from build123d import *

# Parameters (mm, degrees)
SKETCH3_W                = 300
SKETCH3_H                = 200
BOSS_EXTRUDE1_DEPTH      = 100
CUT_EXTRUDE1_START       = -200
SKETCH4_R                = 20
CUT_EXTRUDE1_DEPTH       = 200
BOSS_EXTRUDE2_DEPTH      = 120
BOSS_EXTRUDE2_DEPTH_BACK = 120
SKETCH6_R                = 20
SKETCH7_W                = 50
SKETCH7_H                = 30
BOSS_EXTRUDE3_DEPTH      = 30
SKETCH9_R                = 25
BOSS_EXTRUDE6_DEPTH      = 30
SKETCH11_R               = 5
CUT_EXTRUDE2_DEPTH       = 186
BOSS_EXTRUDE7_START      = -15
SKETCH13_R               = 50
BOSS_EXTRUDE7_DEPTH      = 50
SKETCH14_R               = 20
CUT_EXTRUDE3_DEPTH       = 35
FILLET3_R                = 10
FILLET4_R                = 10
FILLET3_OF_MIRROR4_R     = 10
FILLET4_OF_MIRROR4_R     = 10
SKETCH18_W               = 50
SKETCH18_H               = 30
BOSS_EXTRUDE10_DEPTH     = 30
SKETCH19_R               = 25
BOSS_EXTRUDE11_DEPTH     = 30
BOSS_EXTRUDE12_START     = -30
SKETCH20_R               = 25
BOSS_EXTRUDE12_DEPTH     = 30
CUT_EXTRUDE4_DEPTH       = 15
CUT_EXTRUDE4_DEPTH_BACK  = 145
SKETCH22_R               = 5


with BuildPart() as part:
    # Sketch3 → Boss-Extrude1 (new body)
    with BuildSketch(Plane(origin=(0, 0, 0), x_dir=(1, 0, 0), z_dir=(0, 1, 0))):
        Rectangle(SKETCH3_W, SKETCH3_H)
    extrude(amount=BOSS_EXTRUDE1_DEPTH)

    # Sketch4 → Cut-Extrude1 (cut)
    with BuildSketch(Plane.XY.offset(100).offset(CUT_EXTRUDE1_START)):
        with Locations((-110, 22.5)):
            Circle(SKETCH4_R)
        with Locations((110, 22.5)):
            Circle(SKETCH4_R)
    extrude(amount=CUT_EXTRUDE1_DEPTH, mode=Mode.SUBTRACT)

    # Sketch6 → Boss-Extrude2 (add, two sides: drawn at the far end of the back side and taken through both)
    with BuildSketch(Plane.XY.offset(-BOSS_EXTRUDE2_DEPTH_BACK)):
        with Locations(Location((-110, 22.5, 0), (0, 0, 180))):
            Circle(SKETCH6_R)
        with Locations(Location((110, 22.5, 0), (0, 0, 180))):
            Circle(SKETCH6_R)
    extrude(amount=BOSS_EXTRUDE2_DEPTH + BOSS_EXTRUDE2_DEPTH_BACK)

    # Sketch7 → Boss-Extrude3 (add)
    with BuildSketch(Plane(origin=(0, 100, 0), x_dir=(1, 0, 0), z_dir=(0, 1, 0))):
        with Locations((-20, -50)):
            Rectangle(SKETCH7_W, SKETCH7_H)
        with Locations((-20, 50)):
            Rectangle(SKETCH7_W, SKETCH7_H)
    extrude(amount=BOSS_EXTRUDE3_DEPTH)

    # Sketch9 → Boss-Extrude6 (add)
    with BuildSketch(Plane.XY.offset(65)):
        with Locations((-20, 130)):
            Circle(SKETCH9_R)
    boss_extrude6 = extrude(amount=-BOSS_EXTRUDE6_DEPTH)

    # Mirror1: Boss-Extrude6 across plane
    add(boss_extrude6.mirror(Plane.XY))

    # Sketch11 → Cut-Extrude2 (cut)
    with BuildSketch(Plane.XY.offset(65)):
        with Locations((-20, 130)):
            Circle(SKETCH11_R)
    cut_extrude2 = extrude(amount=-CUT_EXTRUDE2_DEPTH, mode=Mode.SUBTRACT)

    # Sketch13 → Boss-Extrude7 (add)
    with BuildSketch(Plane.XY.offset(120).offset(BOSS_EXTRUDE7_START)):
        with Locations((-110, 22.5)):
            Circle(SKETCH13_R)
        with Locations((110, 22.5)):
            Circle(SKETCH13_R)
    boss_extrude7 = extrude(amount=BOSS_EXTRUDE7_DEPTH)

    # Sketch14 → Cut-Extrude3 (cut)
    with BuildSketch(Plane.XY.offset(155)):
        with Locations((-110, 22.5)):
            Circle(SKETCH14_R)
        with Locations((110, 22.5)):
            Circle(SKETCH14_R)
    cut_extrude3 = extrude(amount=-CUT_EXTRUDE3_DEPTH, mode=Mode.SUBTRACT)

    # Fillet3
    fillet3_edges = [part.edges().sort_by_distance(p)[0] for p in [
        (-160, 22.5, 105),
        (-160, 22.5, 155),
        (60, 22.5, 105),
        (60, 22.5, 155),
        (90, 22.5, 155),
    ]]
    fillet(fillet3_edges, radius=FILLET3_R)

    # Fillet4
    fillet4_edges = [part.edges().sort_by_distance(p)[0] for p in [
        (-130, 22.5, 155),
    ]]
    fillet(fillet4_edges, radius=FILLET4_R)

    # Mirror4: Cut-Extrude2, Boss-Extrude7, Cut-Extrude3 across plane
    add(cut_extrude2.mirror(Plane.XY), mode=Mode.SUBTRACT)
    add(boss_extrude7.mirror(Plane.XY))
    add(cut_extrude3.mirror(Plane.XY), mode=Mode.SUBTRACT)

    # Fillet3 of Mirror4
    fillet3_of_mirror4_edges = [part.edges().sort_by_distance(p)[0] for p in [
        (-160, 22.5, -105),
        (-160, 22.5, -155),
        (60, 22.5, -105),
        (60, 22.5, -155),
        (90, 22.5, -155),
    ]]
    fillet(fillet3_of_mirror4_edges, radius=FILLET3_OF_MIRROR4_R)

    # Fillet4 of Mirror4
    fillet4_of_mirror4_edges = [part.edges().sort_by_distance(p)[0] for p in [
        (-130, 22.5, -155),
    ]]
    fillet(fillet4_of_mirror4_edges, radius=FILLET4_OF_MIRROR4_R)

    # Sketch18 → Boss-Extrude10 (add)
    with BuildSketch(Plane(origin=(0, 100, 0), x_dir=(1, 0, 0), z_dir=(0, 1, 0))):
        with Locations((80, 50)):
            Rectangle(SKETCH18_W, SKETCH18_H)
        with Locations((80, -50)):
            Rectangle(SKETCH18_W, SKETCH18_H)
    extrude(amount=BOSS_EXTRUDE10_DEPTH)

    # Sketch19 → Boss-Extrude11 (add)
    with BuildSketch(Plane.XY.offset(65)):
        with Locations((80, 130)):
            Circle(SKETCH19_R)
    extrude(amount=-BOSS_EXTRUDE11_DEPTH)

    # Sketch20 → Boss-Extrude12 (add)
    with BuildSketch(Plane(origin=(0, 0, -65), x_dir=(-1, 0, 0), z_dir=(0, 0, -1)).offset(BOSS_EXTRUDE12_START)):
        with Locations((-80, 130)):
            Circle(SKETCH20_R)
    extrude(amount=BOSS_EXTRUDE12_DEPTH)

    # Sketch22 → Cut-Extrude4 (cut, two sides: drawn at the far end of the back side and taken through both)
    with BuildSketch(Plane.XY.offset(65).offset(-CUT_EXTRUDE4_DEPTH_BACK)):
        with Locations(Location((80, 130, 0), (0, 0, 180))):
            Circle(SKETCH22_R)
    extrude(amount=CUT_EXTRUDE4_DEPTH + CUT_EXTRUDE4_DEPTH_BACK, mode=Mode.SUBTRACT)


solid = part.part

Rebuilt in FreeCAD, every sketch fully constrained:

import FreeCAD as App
import Part
import Sketcher

V = App.Vector


def edges_at(feature, points):
    """Names of the edges that pass closest to the given points."""
    edges = feature.Shape.Edges
    near = lambda p: min(range(len(edges)), key=lambda i: edges[i].distToShape(Part.Vertex(*p))[0])
    return sorted({f"Edge{near(p) + 1}" for p in points})


def add_polygon(sketch, points):
    """Adds a closed chain of lines whose ends are joined by coincident constraints."""
    first, n = sketch.GeometryCount, len(points)
    for a, b in zip(points, points[1:] + points[:1]):
        sketch.addGeometry(Part.LineSegment(App.Vector(*a, 0), App.Vector(*b, 0)), False)
    for i in range(n):
        sketch.addConstraint(Sketcher.Constraint("Coincident", first + i, 2, first + (i + 1) % n, 1))

doc = App.newDocument("Part")
params = doc.addObject("Spreadsheet::Sheet", "Params")
for row, (alias, value) in enumerate([
    ("sketch1_width", "300 mm"),
    ("sketch1_height", "200 mm"),
    ("pad1_length", "100 mm"),
    ("sketch2_diameter", "40 mm"),
    ("pocket1_length", "200 mm"),
    ("sketch3_diameter", "40 mm"),
    ("pad2_length", "120 mm"),
    ("pad2_length2", "120 mm"),
    ("sketch4_width", "50 mm"),
    ("sketch4_height", "30 mm"),
    ("pad3_length", "30 mm"),
    ("sketch5_diameter", "50 mm"),
    ("pad4_length", "30 mm"),
    ("sketch6_diameter", "10 mm"),
    ("pocket2_length", "186 mm"),
    ("sketch7_diameter", "100 mm"),
    ("pad5_length", "50 mm"),
    ("sketch8_diameter", "40 mm"),
    ("pocket3_length", "35 mm"),
    ("fillet_radius", "10 mm"),
    ("fillet2_radius", "10 mm"),
    ("fillet3_radius", "10 mm"),
    ("fillet4_radius", "10 mm"),
    ("sketch9_width", "50 mm"),
    ("sketch9_height", "30 mm"),
    ("pad6_length", "30 mm"),
    ("sketch10_diameter", "50 mm"),
    ("pad7_length", "30 mm"),
    ("sketch11_diameter", "50 mm"),
    ("pad8_length", "30 mm"),
    ("sketch12_diameter", "10 mm"),
], start=1):
    params.set(f"A{row}", alias)
    params.set(f"B{row}", "=" + value)
    params.setAlias(f"B{row}", alias)

body = doc.addObject("PartDesign::Body", "Body")

# Sketch on XZ plane
sketch1 = doc.addObject("Sketcher::SketchObject", "Sketch")
body.addObject(sketch1)
sketch1.AttachmentSupport = (doc.XZ_Plane, [""])
sketch1.MapMode = "FlatFace"
add_polygon(sketch1, [(-150, -100), (-150, 100), (150, 100), (150, -100)])  # lines 0-3
sketch1.addConstraint([
    Sketcher.Constraint("Vertical", 0),
    Sketcher.Constraint("Horizontal", 1),
    Sketcher.Constraint("Vertical", 2),
    Sketcher.Constraint("Horizontal", 3),
    Sketcher.Constraint("Symmetric", 0, 2, 2, 2, -1, 1),
    Sketcher.Constraint("DistanceX", 1, 1, 1, 2, 300.0),
    Sketcher.Constraint("DistanceY", 0, 1, 0, 2, 200.0),
])
sketch1.setExpression("Constraints[9]", "Params.sketch1_width")
sketch1.setExpression("Constraints[10]", "Params.sketch1_height")
pad1 = doc.addObject("PartDesign::Pad", "Pad")
body.addObject(pad1)
pad1.Profile = sketch1
pad1.setExpression("Length", "Params.pad1_length")
pad1.Reversed = True

# Sketch on XY plane
sketch2 = doc.addObject("Sketcher::SketchObject", "Sketch001")
body.addObject(sketch2)
sketch2.AttachmentSupport = (doc.XY_Plane, [""])
sketch2.MapMode = "FlatFace"
sketch2.AttachmentOffset = App.Placement(V(0, 0, -100), App.Rotation())
sketch2.addGeometry([
    Part.Circle(V(-110, 22, 0), V(0, 0, 1), 20),
    Part.Circle(V(110, 22, 0), V(0, 0, 1), 20),
], False)
sketch2.addConstraint([
    Sketcher.Constraint("Equal", 0, 1),
    Sketcher.Constraint("Symmetric", 0, 3, 1, 3, -2),
    Sketcher.Constraint("Diameter", 0, 40.0),
    Sketcher.Constraint("DistanceX", 0, 3, -1, 1, 110.0),
    Sketcher.Constraint("DistanceY", -1, 1, 0, 3, 22.5),
])
sketch2.setExpression("Constraints[2]", "Params.sketch2_diameter")
pocket1 = doc.addObject("PartDesign::Pocket", "Pocket")
body.addObject(pocket1)
pocket1.Profile = sketch2
pocket1.setExpression("Length", "Params.pocket1_length")
pocket1.Reversed = True

# Sketch on XY plane
sketch3 = doc.addObject("Sketcher::SketchObject", "Sketch002")
body.addObject(sketch3)
sketch3.AttachmentSupport = (doc.XY_Plane, [""])
sketch3.MapMode = "FlatFace"
sketch3.addGeometry([
    Part.Circle(V(-110, 22, 0), V(0, 0, 1), 20),
    Part.Circle(V(110, 22, 0), V(0, 0, 1), 20),
], False)
sketch3.addConstraint([
    Sketcher.Constraint("Equal", 0, 1),
    Sketcher.Constraint("Symmetric", 0, 3, 1, 3, -2),
    Sketcher.Constraint("Diameter", 0, 40.0),
    Sketcher.Constraint("DistanceX", 0, 3, -1, 1, 110.0),
    Sketcher.Constraint("DistanceY", -1, 1, 0, 3, 22.5),
])
sketch3.setExpression("Constraints[2]", "Params.sketch3_diameter")
pad2 = doc.addObject("PartDesign::Pad", "Pad001")
body.addObject(pad2)
pad2.Profile = sketch3
pad2.Type = "TwoLengths"
pad2.setExpression("Length", "Params.pad2_length")
pad2.setExpression("Length2", "Params.pad2_length2")

# Sketch on XZ plane
sketch4 = doc.addObject("Sketcher::SketchObject", "Sketch003")
body.addObject(sketch4)
sketch4.AttachmentSupport = (doc.XZ_Plane, [""])
sketch4.MapMode = "FlatFace"
sketch4.AttachmentOffset = App.Placement(V(0, 0, -100), App.Rotation())
add_polygon(sketch4, [(-45, 35), (-45, 65), (5, 65), (5, 35)])  # lines 0-3
add_polygon(sketch4, [(-45, -65), (-45, -35), (5, -35), (5, -65)])  # lines 4-7
sketch4.addConstraint([
    Sketcher.Constraint("Vertical", 0),
    Sketcher.Constraint("Horizontal", 1),
    Sketcher.Constraint("Vertical", 2),
    Sketcher.Constraint("Horizontal", 3),
    Sketcher.Constraint("Vertical", 4),
    Sketcher.Constraint("Horizontal", 5),
    Sketcher.Constraint("Vertical", 6),
    Sketcher.Constraint("Horizontal", 7),
    Sketcher.Constraint("Symmetric", 3, 2, 4, 2, -1),
    Sketcher.Constraint("Symmetric", 1, 2, 6, 2, -1),
    Sketcher.Constraint("DistanceX", 1, 1, 1, 2, 50.0),
    Sketcher.Constraint("DistanceY", 0, 1, 0, 2, 30.0),
    Sketcher.Constraint("DistanceX", 0, 2, -1, 1, 45.0),
    Sketcher.Constraint("DistanceY", -1, 1, 0, 2, 65.0),
])
sketch4.setExpression("Constraints[18]", "Params.sketch4_width")
sketch4.setExpression("Constraints[19]", "Params.sketch4_height")
pad3 = doc.addObject("PartDesign::Pad", "Pad002")
body.addObject(pad3)
pad3.Profile = sketch4
pad3.setExpression("Length", "Params.pad3_length")
pad3.Reversed = True

# Sketch on XY plane
sketch5 = doc.addObject("Sketcher::SketchObject", "Sketch004")
body.addObject(sketch5)
sketch5.AttachmentSupport = (doc.XY_Plane, [""])
sketch5.MapMode = "FlatFace"
sketch5.AttachmentOffset = App.Placement(V(0, 0, 65), App.Rotation())
sketch5.addGeometry(Part.Circle(V(-20, 130, 0), V(0, 0, 1), 25), False)
sketch5.addConstraint([
    Sketcher.Constraint("Diameter", 0, 50.0),
    Sketcher.Constraint("DistanceX", 0, 3, -1, 1, 20.0),
    Sketcher.Constraint("DistanceY", -1, 1, 0, 3, 130.0),
])
sketch5.setExpression("Constraints[0]", "Params.sketch5_diameter")
pad4 = doc.addObject("PartDesign::Pad", "Pad003")
body.addObject(pad4)
pad4.Profile = sketch5
pad4.setExpression("Length", "Params.pad4_length")
pad4.Reversed = True
doc.recompute()

mirrored = doc.addObject("PartDesign::Mirrored", "Mirrored")
body.addObject(mirrored)
mirrored.Originals = [pad4]
mirrored.MirrorPlane = (doc.XY_Plane, [""])
body.Tip = mirrored

# Sketch on XY plane
sketch6 = doc.addObject("Sketcher::SketchObject", "Sketch005")
body.addObject(sketch6)
sketch6.AttachmentSupport = (doc.XY_Plane, [""])
sketch6.MapMode = "FlatFace"
sketch6.AttachmentOffset = App.Placement(V(0, 0, 65), App.Rotation())
sketch6.addGeometry(Part.Circle(V(-20, 130, 0), V(0, 0, 1), 5), False)
sketch6.addConstraint([
    Sketcher.Constraint("Diameter", 0, 10.0),
    Sketcher.Constraint("DistanceX", 0, 3, -1, 1, 20.0),
    Sketcher.Constraint("DistanceY", -1, 1, 0, 3, 130.0),
])
sketch6.setExpression("Constraints[0]", "Params.sketch6_diameter")
pocket2 = doc.addObject("PartDesign::Pocket", "Pocket001")
body.addObject(pocket2)
pocket2.Profile = sketch6
pocket2.setExpression("Length", "Params.pocket2_length")

# Sketch on XY plane
sketch7 = doc.addObject("Sketcher::SketchObject", "Sketch006")
body.addObject(sketch7)
sketch7.AttachmentSupport = (doc.XY_Plane, [""])
sketch7.MapMode = "FlatFace"
sketch7.AttachmentOffset = App.Placement(V(0, 0, 105), App.Rotation())
sketch7.addGeometry([
    Part.Circle(V(-110, 22, 0), V(0, 0, 1), 50),
    Part.Circle(V(110, 22, 0), V(0, 0, 1), 50),
], False)
sketch7.addConstraint([
    Sketcher.Constraint("Equal", 0, 1),
    Sketcher.Constraint("Symmetric", 0, 3, 1, 3, -2),
    Sketcher.Constraint("Diameter", 0, 100.0),
    Sketcher.Constraint("DistanceX", 0, 3, -1, 1, 110.0),
    Sketcher.Constraint("DistanceY", -1, 1, 0, 3, 22.5),
])
sketch7.setExpression("Constraints[2]", "Params.sketch7_diameter")
pad5 = doc.addObject("PartDesign::Pad", "Pad004")
body.addObject(pad5)
pad5.Profile = sketch7
pad5.setExpression("Length", "Params.pad5_length")

# Sketch on XY plane
sketch8 = doc.addObject("Sketcher::SketchObject", "Sketch007")
body.addObject(sketch8)
sketch8.AttachmentSupport = (doc.XY_Plane, [""])
sketch8.MapMode = "FlatFace"
sketch8.AttachmentOffset = App.Placement(V(0, 0, 155), App.Rotation())
sketch8.addGeometry([
    Part.Circle(V(-110, 22, 0), V(0, 0, 1), 20),
    Part.Circle(V(110, 22, 0), V(0, 0, 1), 20),
], False)
sketch8.addConstraint([
    Sketcher.Constraint("Equal", 0, 1),
    Sketcher.Constraint("Symmetric", 0, 3, 1, 3, -2),
    Sketcher.Constraint("Diameter", 0, 40.0),
    Sketcher.Constraint("DistanceX", 0, 3, -1, 1, 110.0),
    Sketcher.Constraint("DistanceY", -1, 1, 0, 3, 22.5),
])
sketch8.setExpression("Constraints[2]", "Params.sketch8_diameter")
pocket3 = doc.addObject("PartDesign::Pocket", "Pocket002")
body.addObject(pocket3)
pocket3.Profile = sketch8
pocket3.setExpression("Length", "Params.pocket3_length")
doc.recompute()

fillet = doc.addObject("PartDesign::Fillet", "Fillet")
body.addObject(fillet)
fillet.Base = (pocket3, edges_at(pocket3, [
    (-160, 22.5, 105),
    (-160, 22.5, 155),
    (60, 22.5, 105),
    (60, 22.5, 155),
    (90, 22.5, 155),
]))
fillet.setExpression("Radius", "Params.fillet_radius")
doc.recompute()

fillet2 = doc.addObject("PartDesign::Fillet", "Fillet001")
body.addObject(fillet2)
fillet2.Base = (fillet, edges_at(fillet, [(-130, 22.5, 155)]))
fillet2.setExpression("Radius", "Params.fillet2_radius")
doc.recompute()

mirrored2 = doc.addObject("PartDesign::Mirrored", "Mirrored001")
body.addObject(mirrored2)
mirrored2.Originals = [pocket2, pad5, pocket3]
mirrored2.MirrorPlane = (doc.XY_Plane, [""])
body.Tip = mirrored2
doc.recompute()

fillet3 = doc.addObject("PartDesign::Fillet", "Fillet002")
body.addObject(fillet3)
fillet3.Base = (mirrored2, edges_at(mirrored2, [
    (-160, 22.5, -105),
    (-160, 22.5, -155),
    (60, 22.5, -105),
    (60, 22.5, -155),
    (90, 22.5, -155),
]))
fillet3.setExpression("Radius", "Params.fillet3_radius")
doc.recompute()

fillet4 = doc.addObject("PartDesign::Fillet", "Fillet003")
body.addObject(fillet4)
fillet4.Base = (fillet3, edges_at(fillet3, [(-130, 22.5, -155)]))
fillet4.setExpression("Radius", "Params.fillet4_radius")

# Sketch on XZ plane
sketch9 = doc.addObject("Sketcher::SketchObject", "Sketch008")
body.addObject(sketch9)
sketch9.AttachmentSupport = (doc.XZ_Plane, [""])
sketch9.MapMode = "FlatFace"
sketch9.AttachmentOffset = App.Placement(V(0, 0, -100), App.Rotation())
add_polygon(sketch9, [(55, -65), (55, -35), (105, -35), (105, -65)])  # lines 0-3
add_polygon(sketch9, [(55, 35), (55, 65), (105, 65), (105, 35)])  # lines 4-7
sketch9.addConstraint([
    Sketcher.Constraint("Vertical", 0),
    Sketcher.Constraint("Horizontal", 1),
    Sketcher.Constraint("Vertical", 2),
    Sketcher.Constraint("Horizontal", 3),
    Sketcher.Constraint("Vertical", 4),
    Sketcher.Constraint("Horizontal", 5),
    Sketcher.Constraint("Vertical", 6),
    Sketcher.Constraint("Horizontal", 7),
    Sketcher.Constraint("Symmetric", 3, 2, 4, 2, -1),
    Sketcher.Constraint("Symmetric", 1, 2, 6, 2, -1),
    Sketcher.Constraint("DistanceX", 1, 1, 1, 2, 50.0),
    Sketcher.Constraint("DistanceY", 0, 1, 0, 2, 30.0),
    Sketcher.Constraint("DistanceX", -1, 1, 0, 2, 55.0),
    Sketcher.Constraint("DistanceY", 0, 2, -1, 1, 35.0),
])
sketch9.setExpression("Constraints[18]", "Params.sketch9_width")
sketch9.setExpression("Constraints[19]", "Params.sketch9_height")
pad6 = doc.addObject("PartDesign::Pad", "Pad005")
body.addObject(pad6)
pad6.Profile = sketch9
pad6.setExpression("Length", "Params.pad6_length")
pad6.Reversed = True

# Sketch on XY plane
sketch10 = doc.addObject("Sketcher::SketchObject", "Sketch009")
body.addObject(sketch10)
sketch10.AttachmentSupport = (doc.XY_Plane, [""])
sketch10.MapMode = "FlatFace"
sketch10.AttachmentOffset = App.Placement(V(0, 0, 65), App.Rotation())
sketch10.addGeometry(Part.Circle(V(80, 130, 0), V(0, 0, 1), 25), False)
sketch10.addConstraint([
    Sketcher.Constraint("Diameter", 0, 50.0),
    Sketcher.Constraint("DistanceX", -1, 1, 0, 3, 80.0),
    Sketcher.Constraint("DistanceY", -1, 1, 0, 3, 130.0),
])
sketch10.setExpression("Constraints[0]", "Params.sketch10_diameter")
pad7 = doc.addObject("PartDesign::Pad", "Pad006")
body.addObject(pad7)
pad7.Profile = sketch10
pad7.setExpression("Length", "Params.pad7_length")
pad7.Reversed = True

# Sketch on XY plane
sketch11 = doc.addObject("Sketcher::SketchObject", "Sketch010")
body.addObject(sketch11)
sketch11.AttachmentSupport = (doc.XY_Plane, [""])
sketch11.MapMode = "FlatFace"
sketch11.AttachmentOffset = App.Placement(V(0, 0, -35), App.Rotation())
sketch11.addGeometry(Part.Circle(V(80, 130, 0), V(0, 0, 1), 25), False)
sketch11.addConstraint([
    Sketcher.Constraint("Diameter", 0, 50.0),
    Sketcher.Constraint("DistanceX", -1, 1, 0, 3, 80.0),
    Sketcher.Constraint("DistanceY", -1, 1, 0, 3, 130.0),
])
sketch11.setExpression("Constraints[0]", "Params.sketch11_diameter")
pad8 = doc.addObject("PartDesign::Pad", "Pad007")
body.addObject(pad8)
pad8.Profile = sketch11
pad8.setExpression("Length", "Params.pad8_length")
pad8.Reversed = True

# Sketch on XY plane
sketch12 = doc.addObject("Sketcher::SketchObject", "Sketch011")
body.addObject(sketch12)
sketch12.AttachmentSupport = (doc.XY_Plane, [""])
sketch12.MapMode = "FlatFace"
sketch12.AttachmentOffset = App.Placement(V(0, 0, 65), App.Rotation())
sketch12.addGeometry(Part.Circle(V(80, 130, 0), V(0, 0, 1), 5), False)
sketch12.addConstraint([
    Sketcher.Constraint("Diameter", 0, 10.0),
    Sketcher.Constraint("DistanceX", -1, 1, 0, 3, 80.0),
    Sketcher.Constraint("DistanceY", -1, 1, 0, 3, 130.0),
])
sketch12.setExpression("Constraints[0]", "Params.sketch12_diameter")
pocket4 = doc.addObject("PartDesign::Pocket", "Pocket003")
body.addObject(pocket4)
pocket4.Profile = sketch12
pocket4.Type = "ThroughAll"
pocket4.Midplane = True

doc.recompute()
